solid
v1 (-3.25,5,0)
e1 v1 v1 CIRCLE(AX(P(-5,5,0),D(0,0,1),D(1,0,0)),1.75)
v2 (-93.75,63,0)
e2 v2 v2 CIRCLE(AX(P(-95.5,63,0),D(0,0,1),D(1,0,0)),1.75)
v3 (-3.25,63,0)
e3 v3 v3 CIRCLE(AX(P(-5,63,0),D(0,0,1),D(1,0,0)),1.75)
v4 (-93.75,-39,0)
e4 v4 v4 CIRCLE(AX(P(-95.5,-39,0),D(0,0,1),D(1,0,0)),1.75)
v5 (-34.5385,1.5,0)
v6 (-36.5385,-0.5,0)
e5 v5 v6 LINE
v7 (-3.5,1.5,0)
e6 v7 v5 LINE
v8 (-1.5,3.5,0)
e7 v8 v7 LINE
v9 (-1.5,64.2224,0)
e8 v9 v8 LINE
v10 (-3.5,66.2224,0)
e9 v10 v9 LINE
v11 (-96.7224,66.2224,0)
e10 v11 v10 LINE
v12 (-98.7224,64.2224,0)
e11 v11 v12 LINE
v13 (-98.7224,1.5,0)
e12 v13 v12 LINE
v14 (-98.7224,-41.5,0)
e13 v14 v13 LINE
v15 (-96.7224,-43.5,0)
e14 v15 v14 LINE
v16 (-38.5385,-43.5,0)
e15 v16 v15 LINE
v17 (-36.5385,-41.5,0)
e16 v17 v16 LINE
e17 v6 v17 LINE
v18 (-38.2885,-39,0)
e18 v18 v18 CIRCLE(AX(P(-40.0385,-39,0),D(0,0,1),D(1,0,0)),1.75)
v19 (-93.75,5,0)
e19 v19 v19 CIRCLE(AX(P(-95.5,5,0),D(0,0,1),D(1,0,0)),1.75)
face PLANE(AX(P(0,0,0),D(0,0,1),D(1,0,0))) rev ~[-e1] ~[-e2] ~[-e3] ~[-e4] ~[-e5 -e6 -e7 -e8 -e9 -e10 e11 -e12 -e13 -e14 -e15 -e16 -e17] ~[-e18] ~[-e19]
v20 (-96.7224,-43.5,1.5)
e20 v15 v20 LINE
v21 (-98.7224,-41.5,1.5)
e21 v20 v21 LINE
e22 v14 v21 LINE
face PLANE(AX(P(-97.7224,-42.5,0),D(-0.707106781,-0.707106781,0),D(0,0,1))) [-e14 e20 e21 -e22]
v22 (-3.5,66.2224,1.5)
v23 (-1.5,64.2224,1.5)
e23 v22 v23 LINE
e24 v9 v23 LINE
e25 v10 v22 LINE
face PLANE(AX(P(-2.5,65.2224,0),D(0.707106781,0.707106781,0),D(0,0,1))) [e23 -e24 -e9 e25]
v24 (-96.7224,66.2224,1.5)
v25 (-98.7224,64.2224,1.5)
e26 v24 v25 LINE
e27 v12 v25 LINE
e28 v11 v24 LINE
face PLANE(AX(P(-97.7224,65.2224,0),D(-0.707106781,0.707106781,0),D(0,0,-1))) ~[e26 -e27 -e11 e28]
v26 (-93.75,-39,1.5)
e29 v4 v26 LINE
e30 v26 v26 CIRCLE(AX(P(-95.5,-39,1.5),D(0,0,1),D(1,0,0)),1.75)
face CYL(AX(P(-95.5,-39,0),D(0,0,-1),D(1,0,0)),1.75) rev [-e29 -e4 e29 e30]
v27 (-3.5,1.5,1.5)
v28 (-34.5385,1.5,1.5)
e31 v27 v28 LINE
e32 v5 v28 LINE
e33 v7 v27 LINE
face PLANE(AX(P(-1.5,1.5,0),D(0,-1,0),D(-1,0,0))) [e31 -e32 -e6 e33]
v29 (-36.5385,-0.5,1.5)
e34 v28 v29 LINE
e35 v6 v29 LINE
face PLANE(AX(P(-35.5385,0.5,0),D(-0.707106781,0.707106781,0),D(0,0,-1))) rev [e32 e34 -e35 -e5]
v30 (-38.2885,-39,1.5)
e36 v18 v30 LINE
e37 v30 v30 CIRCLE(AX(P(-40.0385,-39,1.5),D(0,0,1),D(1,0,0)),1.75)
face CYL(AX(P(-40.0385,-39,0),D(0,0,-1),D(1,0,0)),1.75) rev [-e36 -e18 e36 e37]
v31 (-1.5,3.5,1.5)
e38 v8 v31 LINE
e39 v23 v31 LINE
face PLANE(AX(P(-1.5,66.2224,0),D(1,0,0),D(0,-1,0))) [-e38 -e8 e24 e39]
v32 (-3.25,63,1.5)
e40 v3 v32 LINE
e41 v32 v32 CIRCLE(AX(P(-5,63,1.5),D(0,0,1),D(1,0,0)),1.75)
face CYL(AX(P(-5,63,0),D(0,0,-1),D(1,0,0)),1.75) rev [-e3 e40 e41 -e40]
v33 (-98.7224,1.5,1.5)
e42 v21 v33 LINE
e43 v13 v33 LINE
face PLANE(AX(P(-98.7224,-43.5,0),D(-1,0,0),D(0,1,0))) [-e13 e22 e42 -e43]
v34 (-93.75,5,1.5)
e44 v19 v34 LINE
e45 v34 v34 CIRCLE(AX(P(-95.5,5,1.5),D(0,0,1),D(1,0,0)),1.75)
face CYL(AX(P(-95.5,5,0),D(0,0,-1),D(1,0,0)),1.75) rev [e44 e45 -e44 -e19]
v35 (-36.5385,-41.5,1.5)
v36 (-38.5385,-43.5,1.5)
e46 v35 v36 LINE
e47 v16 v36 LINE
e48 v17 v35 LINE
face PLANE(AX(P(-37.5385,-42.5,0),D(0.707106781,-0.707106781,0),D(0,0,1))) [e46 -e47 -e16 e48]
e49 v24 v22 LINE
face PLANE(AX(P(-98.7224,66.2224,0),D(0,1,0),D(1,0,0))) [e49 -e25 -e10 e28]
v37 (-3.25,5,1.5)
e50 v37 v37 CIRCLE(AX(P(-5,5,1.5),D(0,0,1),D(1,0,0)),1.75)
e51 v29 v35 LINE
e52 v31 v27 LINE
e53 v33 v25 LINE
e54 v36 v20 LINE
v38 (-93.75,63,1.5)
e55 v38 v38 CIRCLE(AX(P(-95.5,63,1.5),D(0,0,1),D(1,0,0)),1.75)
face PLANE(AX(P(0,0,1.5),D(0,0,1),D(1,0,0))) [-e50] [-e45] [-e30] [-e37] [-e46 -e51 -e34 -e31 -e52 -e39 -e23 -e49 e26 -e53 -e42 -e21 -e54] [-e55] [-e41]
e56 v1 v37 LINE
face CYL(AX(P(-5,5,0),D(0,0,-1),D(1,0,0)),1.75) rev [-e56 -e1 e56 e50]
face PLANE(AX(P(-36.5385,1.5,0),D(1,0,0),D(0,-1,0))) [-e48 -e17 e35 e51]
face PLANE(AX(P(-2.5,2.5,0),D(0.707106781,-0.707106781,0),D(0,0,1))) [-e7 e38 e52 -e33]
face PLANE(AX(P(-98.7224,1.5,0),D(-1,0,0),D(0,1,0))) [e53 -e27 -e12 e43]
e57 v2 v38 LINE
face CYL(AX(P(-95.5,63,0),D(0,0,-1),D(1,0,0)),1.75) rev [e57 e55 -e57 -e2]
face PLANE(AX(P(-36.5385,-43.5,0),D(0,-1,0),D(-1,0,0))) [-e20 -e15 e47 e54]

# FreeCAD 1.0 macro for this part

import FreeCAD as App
import Part
import Sketcher


def edges_at(feature, points):
    """Names of the edges that pass closest to the given points."""
    edges = feature.Shape.Edges
    near = lambda p: min(range(len(edges)), key=lambda i: edges[i].distToShape(Part.Vertex(*p))[0])
    return sorted({f"Edge{near(p) + 1}" for p in points})


def add_polygon(sketch, points):
    """Adds a closed chain of lines whose ends are joined by coincident constraints."""
    first, n = sketch.GeometryCount, len(points)
    for a, b in zip(points, points[1:] + points[:1]):
        sketch.addGeometry(Part.LineSegment(App.Vector(*a, 0), App.Vector(*b, 0)), False)
    for i in range(n):
        sketch.addConstraint(Sketcher.Constraint("Coincident", first + i, 2, first + (i + 1) % n, 1))

doc = App.newDocument("Part")
body = doc.addObject("PartDesign::Body", "Body")

# Sketch on XY plane
sketch1 = body.newObject("Sketcher::SketchObject", "Sketch")
sketch1.AttachmentSupport = (doc.getObject("XY_Plane"), [""])
sketch1.MapMode = "FlatFace"
add_polygon(sketch1, [(-1.5, 66.2), (-98.7, 66.2), (-98.7, -43.5), (-36.5, -43.5), (-36.5, 1.5), (-1.5, 1.5)])  # lines 0-5
sketch1.addGeometry(Part.Circle(App.Vector(-95.5, -39, 0), App.Vector(0, 0, 1), 1.8), False)  # 6
sketch1.addGeometry(Part.Circle(App.Vector(-95.5, 5, 0), App.Vector(0, 0, 1), 1.8), False)  # 7
sketch1.addGeometry(Part.Circle(App.Vector(-40, -39, 0), App.Vector(0, 0, 1), 1.8), False)  # 8
sketch1.addGeometry(Part.Circle(App.Vector(-5, 5, 0), App.Vector(0, 0, 1), 1.8), False)  # 9
sketch1.addGeometry(Part.Circle(App.Vector(-95.5, 63, 0), App.Vector(0, 0, 1), 1.8), False)  # 10
sketch1.addGeometry(Part.Circle(App.Vector(-5, 63, 0), App.Vector(0, 0, 1), 1.8), False)  # 11
sketch1.addConstraint([
    Sketcher.Constraint("Horizontal", 0),
    Sketcher.Constraint("Vertical", 1),
    Sketcher.Constraint("Horizontal", 2),
    Sketcher.Constraint("Vertical", 3),
    Sketcher.Constraint("Horizontal", 4),
    Sketcher.Constraint("Vertical", 5),
    Sketcher.Constraint("Equal", 6, 7),
    Sketcher.Constraint("Equal", 7, 8),
    Sketcher.Constraint("Equal", 8, 9),
    Sketcher.Constraint("Equal", 9, 10),
    Sketcher.Constraint("Equal", 10, 11),
    Sketcher.Constraint("Horizontal", 6, 3, 8, 3),
    Sketcher.Constraint("Horizontal", 7, 3, 9, 3),
    Sketcher.Constraint("Horizontal", 10, 3, 11, 3),
    Sketcher.Constraint("Vertical", 6, 3, 7, 3),
    Sketcher.Constraint("Vertical", 7, 3, 10, 3),
    Sketcher.Constraint("Vertical", 9, 3, 11, 3),
    Sketcher.Constraint("Diameter", 6, 3.5),
    Sketcher.Constraint("DistanceY", 1, 2, 6, 3, 4.5),
    Sketcher.Constraint("DistanceX", 8, 3, 2, 2, 3.5),
    Sketcher.Constraint("DistanceY", 3, 2, 9, 3, 3.5),
    Sketcher.Constraint("DistanceX", 9, 3, 4, 2, 3.5),
    Sketcher.Constraint("DistanceY", 3, 1, 3, 2, 45.0),
    Sketcher.Constraint("DistanceY", 6, 3, -1, 1, 39.0),
    Sketcher.Constraint("DistanceX", 9, 3, -1, 1, 5.0),
    Sketcher.Constraint("DistanceY", -1, 1, 10, 3, 63.0),
    Sketcher.Constraint("DistanceX", 10, 3, 5, 2, 94.0),
    Sketcher.Constraint("DistanceX", 2, 1, 2, 2, 62.184),
    Sketcher.Constraint("DistanceX", 0, 2, 0, 1, 97.2224),
    Sketcher.Constraint("DistanceY", 1, 2, 1, 1, 109.7224),
])
pad1 = body.newObject("PartDesign::Pad", "Pad")
pad1.Profile = sketch1
pad1.Length = 1.5
doc.recompute()

chamfer = body.newObject("PartDesign::Chamfer", "Chamfer")
chamfer.Base = (pad1, edges_at(pad1, [
    (-98.722, -43.5, 0.75),
    (-36.538, -43.5, 0.75),
    (-36.538, 1.5, 0.75),
    (-1.5, 1.5, 0.75),
    (-1.5, 66.222, 0.75),
    (-98.722, 66.222, 0.75),
]))
chamfer.Size = 2

doc.recompute()
